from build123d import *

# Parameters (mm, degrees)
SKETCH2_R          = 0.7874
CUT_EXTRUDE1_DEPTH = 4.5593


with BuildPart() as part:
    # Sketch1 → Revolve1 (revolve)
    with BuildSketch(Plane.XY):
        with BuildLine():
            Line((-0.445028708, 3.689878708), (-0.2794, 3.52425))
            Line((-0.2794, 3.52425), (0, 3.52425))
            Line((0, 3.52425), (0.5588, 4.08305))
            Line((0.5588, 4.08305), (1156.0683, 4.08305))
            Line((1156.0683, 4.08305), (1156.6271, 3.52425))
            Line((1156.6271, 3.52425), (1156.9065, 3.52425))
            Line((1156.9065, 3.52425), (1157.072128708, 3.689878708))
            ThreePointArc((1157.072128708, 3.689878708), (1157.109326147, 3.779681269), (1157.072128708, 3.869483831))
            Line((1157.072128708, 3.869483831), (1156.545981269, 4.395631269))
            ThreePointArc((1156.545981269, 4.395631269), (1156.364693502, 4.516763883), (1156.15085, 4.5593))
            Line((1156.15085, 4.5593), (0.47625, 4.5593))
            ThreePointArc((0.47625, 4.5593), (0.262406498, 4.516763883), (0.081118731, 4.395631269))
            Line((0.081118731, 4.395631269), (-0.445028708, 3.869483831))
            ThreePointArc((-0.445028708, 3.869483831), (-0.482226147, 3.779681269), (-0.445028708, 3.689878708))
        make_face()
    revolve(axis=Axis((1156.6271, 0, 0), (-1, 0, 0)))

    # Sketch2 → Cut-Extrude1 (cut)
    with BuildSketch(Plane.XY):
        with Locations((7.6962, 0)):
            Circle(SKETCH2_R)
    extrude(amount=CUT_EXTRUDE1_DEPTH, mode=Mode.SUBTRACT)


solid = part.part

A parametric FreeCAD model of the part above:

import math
import FreeCAD as App
import Part
import Sketcher

V = App.Vector
Q = App.Units.Quantity

doc = App.newDocument("Part")
body = doc.addObject("PartDesign::Body", "Body")

sketch1 = body.newObject("Sketcher::SketchObject", "Sketch")
sketch1.AttachmentSupport = (doc.getObject("XY_Plane"), [""])
sketch1.MapMode = "FlatFace"
sketch1.addGeometry([
    Part.LineSegment(V(-0.445029, 3.689879, 0), V(-0.2794, 3.52425, 0)),
    Part.LineSegment(V(-0.2794, 3.52425, 0), V(0, 3.52425, 0)),
    Part.LineSegment(V(0, 3.52425, 0), V(0.5588, 4.08305, 0)),
    Part.LineSegment(V(0.5588, 4.08305, 0), V(1156.0683, 4.08305, 0)),
    Part.LineSegment(V(1156.0683, 4.08305, 0), V(1156.6271, 3.52425, 0)),
    Part.LineSegment(V(1156.6271, 3.52425, 0), V(1156.9065, 3.52425, 0)),
    Part.LineSegment(V(1156.9065, 3.52425, 0), V(1157.072129, 3.689879, 0)),
    Part.ArcOfCircle(Part.Circle(V(1156.982326, 3.779681, 0), V(0, 0, 1), 0.127), math.radians(-45), math.radians(45)),
    Part.LineSegment(V(1157.072129, 3.869484, 0), V(1156.545981, 4.395631, 0)),
    Part.ArcOfCircle(Part.Circle(V(1156.15085, 4.0005, 0), V(0, 0, 1), 0.5588), math.radians(45), math.radians(90)),
    Part.LineSegment(V(1156.15085, 4.5593, 0), V(0.47625, 4.5593, 0)),
    Part.ArcOfCircle(Part.Circle(V(0.47625, 4.0005, 0), V(0, 0, 1), 0.5588), math.radians(90), math.radians(135)),
    Part.LineSegment(V(0.081119, 4.395631, 0), V(-0.445029, 3.869484, 0)),
    Part.ArcOfCircle(Part.Circle(V(-0.355226, 3.779681, 0), V(0, 0, 1), 0.127), math.radians(135), math.radians(225)),
], False)
sketch1.addConstraint([
    Sketcher.Constraint("Coincident", 0, 2, 1, 1),
    Sketcher.Constraint("Coincident", 1, 2, 2, 1),
    Sketcher.Constraint("Coincident", 2, 2, 3, 1),
    Sketcher.Constraint("Coincident", 3, 2, 4, 1),
    Sketcher.Constraint("Coincident", 4, 2, 5, 1),
    Sketcher.Constraint("Coincident", 5, 2, 6, 1),
    Sketcher.Constraint("Tangent", 6, 2, 7, 1),
    Sketcher.Constraint("Tangent", 7, 2, 8, 1),
    Sketcher.Constraint("Tangent", 8, 2, 9, 1),
    Sketcher.Constraint("Tangent", 9, 2, 10, 1),
    Sketcher.Constraint("Tangent", 10, 2, 11, 1),
    Sketcher.Constraint("Tangent", 11, 2, 12, 1),
    Sketcher.Constraint("Tangent", 12, 2, 13, 1),
    Sketcher.Constraint("Tangent", 13, 2, 0, 1),
    Sketcher.Constraint("Horizontal", 1),
    Sketcher.Constraint("Horizontal", 3),
    Sketcher.Constraint("Horizontal", 5),
    Sketcher.Constraint("Horizontal", 10),
    Sketcher.Constraint("Equal", 9, 11),
    Sketcher.Constraint("Equal", 7, 13),
    Sketcher.Constraint("PointOnObject", 1, 2, -2),
    Sketcher.Constraint("Perpendicular", 0, 2),
    Sketcher.Constraint("Perpendicular", 2, 4),
    Sketcher.Constraint("Perpendicular", 4, 6),
    Sketcher.Constraint("Perpendicular", 6, 8),
    Sketcher.Constraint("Perpendicular", 8, 12),
    Sketcher.Constraint("Horizontal", 7, 3, 13, 3),
    Sketcher.Constraint("Horizontal", 1, 2, 4, 2),
    Sketcher.Constraint("Horizontal", 8, 2, 11, 2),
    Sketcher.Constraint("Equal", 1, 5),
    Sketcher.Constraint("Radius", 7, Q("0.005 in")),
    Sketcher.Constraint("Radius", 9, Q("0.022 in")),
    Sketcher.Constraint("DistanceX", 1, 1, 1, 2, Q("0.011 in")),
    Sketcher.Constraint("DistanceX", 10, 2, 10, 1, Q("45.499 in")),
    Sketcher.Constraint("DistanceX", 3, 1, 3, 2, Q("45.4925 in")),
    Sketcher.Constraint("DistanceX", -1, 1, 2, 2, Q("0.022 in")),
    Sketcher.Constraint("DistanceY", -1, 1, 9, 3, Q("0.1575 in")),
    Sketcher.Constraint("DistanceY", -1, 1, 7, 3, 3.779681),
])
revolution = body.newObject("PartDesign::Revolution", "Revolution")
revolution.Profile = sketch1
revolution.ReferenceAxis = (sketch1, ["H_Axis"])
revolution.Angle = 360

sketch2 = body.newObject("Sketcher::SketchObject", "Sketch001")
sketch2.AttachmentSupport = (doc.getObject("XY_Plane"), [""])
sketch2.MapMode = "FlatFace"
sketch2.addGeometry(Part.Circle(V(7.6962, 0, 0), V(0, 0, 1), 0.7874), False)
sketch2.addConstraint([
    Sketcher.Constraint("PointOnObject", 0, 3, -1),
    Sketcher.Constraint("Diameter", 0, Q("0.062 in")),
    Sketcher.Constraint("DistanceX", -1, 1, 0, 3, Q("0.303 in")),
])
pocket1 = body.newObject("PartDesign::Pocket", "Pocket")
pocket1.Profile = sketch2
pocket1.Length = Q("0.1795 in")
pocket1.Reversed = True

doc.recompute()
